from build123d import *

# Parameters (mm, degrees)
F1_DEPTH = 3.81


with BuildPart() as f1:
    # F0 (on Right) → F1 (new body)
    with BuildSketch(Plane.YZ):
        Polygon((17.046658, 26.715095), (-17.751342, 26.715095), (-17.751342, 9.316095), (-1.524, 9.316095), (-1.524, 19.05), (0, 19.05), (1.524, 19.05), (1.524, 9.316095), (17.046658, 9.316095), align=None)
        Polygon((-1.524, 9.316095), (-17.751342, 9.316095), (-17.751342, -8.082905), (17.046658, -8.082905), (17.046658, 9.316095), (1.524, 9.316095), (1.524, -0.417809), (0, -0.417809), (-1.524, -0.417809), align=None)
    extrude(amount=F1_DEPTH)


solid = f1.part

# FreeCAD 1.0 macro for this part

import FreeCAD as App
import Part
import Sketcher
Q = App.Units.Quantity

doc = App.newDocument("Part")
body = doc.addObject("PartDesign::Body", "Body")

sketch1 = body.newObject("Sketcher::SketchObject", "Sketch")
sketch1.AttachmentSupport = (doc.getObject("YZ_Plane"), [""])
sketch1.MapMode = "FlatFace"
sketch1.addGeometry([
    Part.LineSegment(App.Vector(17, 26.7, 0), App.Vector(-17.8, 26.7, 0)),
    Part.LineSegment(App.Vector(-17.8, 26.7, 0), App.Vector(-17.8, -8.1, 0)),
    Part.LineSegment(App.Vector(-17.8, -8.1, 0), App.Vector(17, -8.1, 0)),
    Part.LineSegment(App.Vector(17, -8.1, 0), App.Vector(17, 26.7, 0)),
    Part.LineSegment(App.Vector(-1.5, 19.1, 0), App.Vector(1.5, 19.1, 0)),
    Part.LineSegment(App.Vector(1.5, 19.1, 0), App.Vector(1.5, -0.4, 0)),
    Part.LineSegment(App.Vector(1.5, -0.4, 0), App.Vector(-1.5, -0.4, 0)),
    Part.LineSegment(App.Vector(-1.5, -0.4, 0), App.Vector(-1.5, 19.1, 0)),
], False)
sketch1.addConstraint([
    Sketcher.Constraint("Coincident", 0, 2, 1, 1),
    Sketcher.Constraint("Coincident", 1, 2, 2, 1),
    Sketcher.Constraint("Coincident", 2, 2, 3, 1),
    Sketcher.Constraint("Coincident", 3, 2, 0, 1),
    Sketcher.Constraint("Coincident", 4, 2, 5, 1),
    Sketcher.Constraint("Coincident", 5, 2, 6, 1),
    Sketcher.Constraint("Coincident", 6, 2, 7, 1),
    Sketcher.Constraint("Coincident", 7, 2, 4, 1),
    Sketcher.Constraint("Horizontal", 0),
    Sketcher.Constraint("Vertical", 1),
    Sketcher.Constraint("Horizontal", 2),
    Sketcher.Constraint("Vertical", 3),
    Sketcher.Constraint("Horizontal", 4),
    Sketcher.Constraint("Vertical", 5),
    Sketcher.Constraint("Horizontal", 6),
    Sketcher.Constraint("Vertical", 7),
    Sketcher.Constraint("Equal", 2, 1),
    Sketcher.Constraint("DistanceX", 0, 2, 0, 1, Q("1.37 in")),
    Sketcher.Constraint("DistanceX", 4, 1, 4, 2, Q("0.12 in")),
    Sketcher.Constraint("DistanceX", -1, 1, 4, 2, Q("0.06 in")),
    Sketcher.Constraint("DistanceY", -1, 1, 4, 2, Q("0.75 in")),
    Sketcher.Constraint("DistanceY", 5, 2, 5, 1, Q("19.467809 mm")),
    Sketcher.Constraint("DistanceX", -1, 1, 2, 2, Q("17.046658 mm")),
    Sketcher.Constraint("DistanceY", -1, 1, 0, 2, Q("26.715095 mm")),
])
pad1 = body.newObject("PartDesign::Pad", "Pad")
pad1.Profile = sketch1
pad1.Length = Q("0.15 in")

doc.recompute()
